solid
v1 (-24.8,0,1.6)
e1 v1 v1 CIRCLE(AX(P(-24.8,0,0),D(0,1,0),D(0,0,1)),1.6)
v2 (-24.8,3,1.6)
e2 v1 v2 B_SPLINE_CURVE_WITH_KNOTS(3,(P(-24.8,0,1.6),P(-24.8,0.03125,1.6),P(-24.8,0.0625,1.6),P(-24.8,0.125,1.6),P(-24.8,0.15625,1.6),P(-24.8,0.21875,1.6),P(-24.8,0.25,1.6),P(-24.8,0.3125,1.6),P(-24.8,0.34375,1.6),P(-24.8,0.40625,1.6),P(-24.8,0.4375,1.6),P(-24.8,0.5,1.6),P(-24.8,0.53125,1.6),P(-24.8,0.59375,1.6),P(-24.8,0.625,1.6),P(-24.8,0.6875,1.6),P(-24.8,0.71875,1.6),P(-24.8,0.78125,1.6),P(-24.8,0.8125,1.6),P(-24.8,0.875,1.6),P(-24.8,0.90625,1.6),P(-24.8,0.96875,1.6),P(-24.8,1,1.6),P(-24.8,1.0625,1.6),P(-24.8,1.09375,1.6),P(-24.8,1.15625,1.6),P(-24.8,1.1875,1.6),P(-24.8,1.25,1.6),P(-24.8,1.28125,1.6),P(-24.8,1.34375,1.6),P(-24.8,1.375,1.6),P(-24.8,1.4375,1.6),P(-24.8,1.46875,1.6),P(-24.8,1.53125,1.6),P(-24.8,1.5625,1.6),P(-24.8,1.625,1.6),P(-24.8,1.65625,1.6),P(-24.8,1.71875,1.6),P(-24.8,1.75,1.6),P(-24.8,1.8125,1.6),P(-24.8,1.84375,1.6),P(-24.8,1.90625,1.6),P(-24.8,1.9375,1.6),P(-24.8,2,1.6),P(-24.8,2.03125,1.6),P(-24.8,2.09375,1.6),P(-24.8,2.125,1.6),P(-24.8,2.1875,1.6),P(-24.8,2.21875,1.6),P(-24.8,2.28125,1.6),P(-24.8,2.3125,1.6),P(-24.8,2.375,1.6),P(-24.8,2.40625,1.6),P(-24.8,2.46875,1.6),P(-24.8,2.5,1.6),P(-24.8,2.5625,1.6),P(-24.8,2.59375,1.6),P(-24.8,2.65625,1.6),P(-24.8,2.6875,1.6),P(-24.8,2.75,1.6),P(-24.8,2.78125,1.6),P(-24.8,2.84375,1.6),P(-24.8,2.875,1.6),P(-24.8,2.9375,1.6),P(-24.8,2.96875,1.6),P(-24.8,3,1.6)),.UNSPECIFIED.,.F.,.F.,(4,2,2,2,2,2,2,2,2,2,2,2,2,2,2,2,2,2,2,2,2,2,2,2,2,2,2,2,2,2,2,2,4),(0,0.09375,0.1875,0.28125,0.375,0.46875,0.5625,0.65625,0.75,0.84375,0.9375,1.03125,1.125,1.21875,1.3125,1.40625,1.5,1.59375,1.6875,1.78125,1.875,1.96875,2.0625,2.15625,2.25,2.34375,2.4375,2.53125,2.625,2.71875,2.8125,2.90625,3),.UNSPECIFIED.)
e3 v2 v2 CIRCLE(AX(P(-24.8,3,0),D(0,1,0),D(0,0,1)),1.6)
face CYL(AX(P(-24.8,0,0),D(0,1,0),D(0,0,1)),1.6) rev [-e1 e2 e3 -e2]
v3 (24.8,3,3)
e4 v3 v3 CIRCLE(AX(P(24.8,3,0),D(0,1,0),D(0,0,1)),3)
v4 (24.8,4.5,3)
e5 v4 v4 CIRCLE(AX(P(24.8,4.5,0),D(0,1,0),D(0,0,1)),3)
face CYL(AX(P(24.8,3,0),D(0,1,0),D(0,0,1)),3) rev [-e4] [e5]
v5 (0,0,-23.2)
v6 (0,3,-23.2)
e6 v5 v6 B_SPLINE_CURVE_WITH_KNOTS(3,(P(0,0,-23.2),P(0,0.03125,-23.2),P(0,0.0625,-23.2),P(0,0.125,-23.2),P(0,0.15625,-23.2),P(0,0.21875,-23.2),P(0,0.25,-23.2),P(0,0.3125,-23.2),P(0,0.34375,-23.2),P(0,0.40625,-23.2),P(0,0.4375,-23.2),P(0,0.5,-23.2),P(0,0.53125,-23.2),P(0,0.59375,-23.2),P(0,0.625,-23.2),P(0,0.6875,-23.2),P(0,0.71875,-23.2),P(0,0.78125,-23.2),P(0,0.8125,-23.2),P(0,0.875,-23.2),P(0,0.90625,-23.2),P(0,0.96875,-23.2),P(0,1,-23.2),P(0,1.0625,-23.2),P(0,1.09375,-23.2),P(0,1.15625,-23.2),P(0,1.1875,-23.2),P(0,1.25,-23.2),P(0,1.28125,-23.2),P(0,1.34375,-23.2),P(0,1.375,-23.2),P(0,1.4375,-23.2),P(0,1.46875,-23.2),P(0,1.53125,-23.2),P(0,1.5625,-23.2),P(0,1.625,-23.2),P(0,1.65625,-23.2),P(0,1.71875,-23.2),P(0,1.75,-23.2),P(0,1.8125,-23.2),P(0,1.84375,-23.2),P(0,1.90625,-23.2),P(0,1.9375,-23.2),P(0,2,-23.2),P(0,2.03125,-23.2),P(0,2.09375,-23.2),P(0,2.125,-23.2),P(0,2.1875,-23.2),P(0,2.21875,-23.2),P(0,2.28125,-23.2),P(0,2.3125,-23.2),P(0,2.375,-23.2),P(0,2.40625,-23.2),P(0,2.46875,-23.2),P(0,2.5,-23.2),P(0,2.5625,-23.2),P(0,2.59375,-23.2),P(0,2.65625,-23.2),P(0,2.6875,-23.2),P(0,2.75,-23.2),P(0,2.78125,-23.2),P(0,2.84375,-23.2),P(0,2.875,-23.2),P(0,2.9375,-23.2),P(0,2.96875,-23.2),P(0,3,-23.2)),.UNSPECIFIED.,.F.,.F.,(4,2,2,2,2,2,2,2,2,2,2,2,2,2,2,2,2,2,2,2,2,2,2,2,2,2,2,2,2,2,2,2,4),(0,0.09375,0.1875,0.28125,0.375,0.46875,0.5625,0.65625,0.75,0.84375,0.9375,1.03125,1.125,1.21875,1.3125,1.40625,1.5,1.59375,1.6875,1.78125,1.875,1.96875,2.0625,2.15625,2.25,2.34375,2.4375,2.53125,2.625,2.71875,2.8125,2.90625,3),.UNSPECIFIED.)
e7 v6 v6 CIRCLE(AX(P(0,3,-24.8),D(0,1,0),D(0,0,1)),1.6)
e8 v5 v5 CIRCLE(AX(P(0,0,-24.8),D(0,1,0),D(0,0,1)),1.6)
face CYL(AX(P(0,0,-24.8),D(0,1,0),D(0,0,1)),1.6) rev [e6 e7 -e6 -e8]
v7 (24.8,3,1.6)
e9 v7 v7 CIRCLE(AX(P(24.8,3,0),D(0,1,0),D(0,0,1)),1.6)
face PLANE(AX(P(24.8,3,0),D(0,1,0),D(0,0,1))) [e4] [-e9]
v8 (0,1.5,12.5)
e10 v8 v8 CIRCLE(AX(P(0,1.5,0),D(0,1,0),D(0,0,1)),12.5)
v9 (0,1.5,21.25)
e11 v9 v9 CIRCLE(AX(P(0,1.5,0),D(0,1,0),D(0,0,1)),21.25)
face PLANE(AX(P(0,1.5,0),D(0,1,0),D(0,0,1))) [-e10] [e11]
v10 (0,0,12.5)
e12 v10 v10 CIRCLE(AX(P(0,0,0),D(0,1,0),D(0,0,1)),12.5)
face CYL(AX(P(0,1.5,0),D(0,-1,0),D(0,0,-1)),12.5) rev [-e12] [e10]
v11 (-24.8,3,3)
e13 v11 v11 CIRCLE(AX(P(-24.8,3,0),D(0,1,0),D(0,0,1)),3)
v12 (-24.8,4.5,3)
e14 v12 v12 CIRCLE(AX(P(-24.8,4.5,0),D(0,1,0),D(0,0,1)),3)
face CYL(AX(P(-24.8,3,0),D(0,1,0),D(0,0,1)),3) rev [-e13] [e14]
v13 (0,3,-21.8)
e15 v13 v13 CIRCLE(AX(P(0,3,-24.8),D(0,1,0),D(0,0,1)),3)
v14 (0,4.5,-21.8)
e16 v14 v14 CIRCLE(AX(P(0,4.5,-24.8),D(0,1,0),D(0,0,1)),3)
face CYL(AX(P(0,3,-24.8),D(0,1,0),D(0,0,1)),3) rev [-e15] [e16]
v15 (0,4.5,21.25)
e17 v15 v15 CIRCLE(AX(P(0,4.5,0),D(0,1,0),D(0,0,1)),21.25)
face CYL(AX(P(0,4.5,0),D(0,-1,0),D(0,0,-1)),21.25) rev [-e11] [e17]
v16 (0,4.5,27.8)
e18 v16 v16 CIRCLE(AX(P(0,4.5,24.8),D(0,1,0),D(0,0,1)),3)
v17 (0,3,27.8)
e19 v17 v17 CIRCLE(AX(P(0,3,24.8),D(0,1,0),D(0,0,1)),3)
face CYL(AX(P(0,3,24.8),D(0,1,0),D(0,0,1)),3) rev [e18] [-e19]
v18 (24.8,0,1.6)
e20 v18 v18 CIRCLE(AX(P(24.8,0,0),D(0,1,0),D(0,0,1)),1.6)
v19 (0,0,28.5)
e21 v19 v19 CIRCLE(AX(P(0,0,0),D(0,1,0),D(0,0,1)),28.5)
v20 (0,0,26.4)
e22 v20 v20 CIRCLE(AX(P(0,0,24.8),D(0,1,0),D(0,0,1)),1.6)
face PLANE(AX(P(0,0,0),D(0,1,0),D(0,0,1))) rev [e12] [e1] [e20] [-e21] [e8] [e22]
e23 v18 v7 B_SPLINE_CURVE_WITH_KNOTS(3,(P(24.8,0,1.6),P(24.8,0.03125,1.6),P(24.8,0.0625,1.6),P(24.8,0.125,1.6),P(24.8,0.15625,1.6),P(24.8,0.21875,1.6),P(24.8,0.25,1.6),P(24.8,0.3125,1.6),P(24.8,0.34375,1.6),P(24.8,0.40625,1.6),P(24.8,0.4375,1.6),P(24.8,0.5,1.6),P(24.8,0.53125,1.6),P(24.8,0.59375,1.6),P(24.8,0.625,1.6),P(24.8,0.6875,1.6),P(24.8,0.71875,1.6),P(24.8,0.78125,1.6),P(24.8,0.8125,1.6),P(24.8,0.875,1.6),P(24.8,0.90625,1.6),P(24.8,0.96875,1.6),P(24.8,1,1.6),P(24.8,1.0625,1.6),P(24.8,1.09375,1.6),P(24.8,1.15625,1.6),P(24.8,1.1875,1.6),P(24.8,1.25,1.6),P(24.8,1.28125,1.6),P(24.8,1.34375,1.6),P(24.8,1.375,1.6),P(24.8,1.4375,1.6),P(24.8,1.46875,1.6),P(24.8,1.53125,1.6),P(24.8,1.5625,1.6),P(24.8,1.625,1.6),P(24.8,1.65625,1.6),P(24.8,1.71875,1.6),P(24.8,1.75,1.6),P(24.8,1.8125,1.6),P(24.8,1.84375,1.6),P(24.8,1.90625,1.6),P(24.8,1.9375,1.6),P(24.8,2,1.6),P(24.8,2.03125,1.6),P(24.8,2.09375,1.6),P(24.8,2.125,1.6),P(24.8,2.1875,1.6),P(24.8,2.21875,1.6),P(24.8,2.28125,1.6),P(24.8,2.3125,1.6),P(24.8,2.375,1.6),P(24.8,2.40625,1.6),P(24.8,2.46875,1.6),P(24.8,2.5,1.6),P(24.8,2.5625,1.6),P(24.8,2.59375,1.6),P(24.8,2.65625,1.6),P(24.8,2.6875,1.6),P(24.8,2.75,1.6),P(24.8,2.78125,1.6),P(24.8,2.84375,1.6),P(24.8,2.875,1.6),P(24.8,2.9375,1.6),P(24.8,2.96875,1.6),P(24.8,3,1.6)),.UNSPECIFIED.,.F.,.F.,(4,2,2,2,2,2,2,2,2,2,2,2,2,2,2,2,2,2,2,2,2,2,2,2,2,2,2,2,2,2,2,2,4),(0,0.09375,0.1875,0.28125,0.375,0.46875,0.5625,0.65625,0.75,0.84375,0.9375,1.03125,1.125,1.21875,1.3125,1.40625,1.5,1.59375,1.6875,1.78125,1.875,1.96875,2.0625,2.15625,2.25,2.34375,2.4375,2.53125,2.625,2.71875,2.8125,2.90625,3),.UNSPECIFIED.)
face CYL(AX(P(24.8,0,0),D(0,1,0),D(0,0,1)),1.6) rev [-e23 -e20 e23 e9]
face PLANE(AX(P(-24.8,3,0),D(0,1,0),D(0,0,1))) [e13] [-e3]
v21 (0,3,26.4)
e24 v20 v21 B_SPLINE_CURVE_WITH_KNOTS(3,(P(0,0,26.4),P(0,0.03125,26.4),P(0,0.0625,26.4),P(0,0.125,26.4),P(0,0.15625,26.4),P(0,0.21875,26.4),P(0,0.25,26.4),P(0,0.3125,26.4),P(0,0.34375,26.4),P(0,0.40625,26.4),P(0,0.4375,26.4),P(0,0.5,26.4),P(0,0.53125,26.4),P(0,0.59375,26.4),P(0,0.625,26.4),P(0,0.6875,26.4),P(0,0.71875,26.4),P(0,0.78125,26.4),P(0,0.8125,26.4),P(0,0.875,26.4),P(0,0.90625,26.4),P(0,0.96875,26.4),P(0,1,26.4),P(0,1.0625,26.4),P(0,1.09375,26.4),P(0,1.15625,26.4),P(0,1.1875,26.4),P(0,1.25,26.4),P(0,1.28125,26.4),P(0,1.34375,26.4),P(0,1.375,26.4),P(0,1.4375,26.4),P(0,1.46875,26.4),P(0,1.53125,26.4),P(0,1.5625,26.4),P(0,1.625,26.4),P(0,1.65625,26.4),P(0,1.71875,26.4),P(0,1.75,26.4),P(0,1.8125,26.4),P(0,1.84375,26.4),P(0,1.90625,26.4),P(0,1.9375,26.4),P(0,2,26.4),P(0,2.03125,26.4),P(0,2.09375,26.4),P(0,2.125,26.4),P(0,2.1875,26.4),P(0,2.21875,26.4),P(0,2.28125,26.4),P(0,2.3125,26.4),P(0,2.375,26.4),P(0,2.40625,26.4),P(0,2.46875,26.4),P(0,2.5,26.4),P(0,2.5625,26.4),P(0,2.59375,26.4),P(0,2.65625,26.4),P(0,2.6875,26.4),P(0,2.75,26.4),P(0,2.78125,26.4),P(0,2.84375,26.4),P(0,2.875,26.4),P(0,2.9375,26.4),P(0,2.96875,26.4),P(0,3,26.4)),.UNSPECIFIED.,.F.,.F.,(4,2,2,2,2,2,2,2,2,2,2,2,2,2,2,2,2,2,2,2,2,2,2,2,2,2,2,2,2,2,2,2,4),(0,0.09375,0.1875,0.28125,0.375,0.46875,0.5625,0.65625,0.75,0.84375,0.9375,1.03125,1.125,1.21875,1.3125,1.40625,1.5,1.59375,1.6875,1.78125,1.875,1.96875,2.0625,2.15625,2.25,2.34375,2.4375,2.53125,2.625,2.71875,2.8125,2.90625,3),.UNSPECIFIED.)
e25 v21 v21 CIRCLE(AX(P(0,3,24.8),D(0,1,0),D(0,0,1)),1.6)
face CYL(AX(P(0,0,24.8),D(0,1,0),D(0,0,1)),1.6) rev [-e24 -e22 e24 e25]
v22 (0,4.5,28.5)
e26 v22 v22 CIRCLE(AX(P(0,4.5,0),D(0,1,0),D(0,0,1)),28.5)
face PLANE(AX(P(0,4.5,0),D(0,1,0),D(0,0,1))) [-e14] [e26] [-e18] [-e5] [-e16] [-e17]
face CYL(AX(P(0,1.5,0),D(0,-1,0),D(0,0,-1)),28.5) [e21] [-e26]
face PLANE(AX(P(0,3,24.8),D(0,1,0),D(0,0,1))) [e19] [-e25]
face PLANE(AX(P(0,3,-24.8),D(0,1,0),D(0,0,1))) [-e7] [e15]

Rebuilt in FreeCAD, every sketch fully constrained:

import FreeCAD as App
import Part
import Sketcher
from FreeCAD import Vector

doc = App.newDocument("Part")
body = doc.addObject("PartDesign::Body", "Body")

# Sketch on XZ plane
sketch1 = doc.addObject("Sketcher::SketchObject", "Sketch")
body.addObject(sketch1)
sketch1.AttachmentSupport = (doc.XZ_Plane, [""])
sketch1.MapMode = "FlatFace"
sketch1.addGeometry([
    Part.Circle(Vector(0, 0, 0), Vector(0, 0, 1), 28),
    Part.Circle(Vector(0, 0, 0), Vector(0, 0, 1), 12),
], False)
sketch1.addConstraint([
    Sketcher.Constraint("Coincident", 0, 3, -1, 1),
    Sketcher.Constraint("Coincident", 1, 3, -1, 1),
    Sketcher.Constraint("Diameter", 0, 57.0),
    Sketcher.Constraint("Diameter", 1, 25.0),
])
pad1 = doc.addObject("PartDesign::Pad", "Pad")
body.addObject(pad1)
pad1.Profile = sketch1
pad1.Length = 1.5
pad1.Reversed = True

# Sketch on XZ plane
sketch2 = doc.addObject("Sketcher::SketchObject", "Sketch001")
body.addObject(sketch2)
sketch2.AttachmentSupport = (doc.XZ_Plane, [""])
sketch2.MapMode = "FlatFace"
sketch2.AttachmentOffset = App.Placement(Vector(0, 0, -1.5), App.Rotation())
sketch2.addGeometry([
    Part.Circle(Vector(0, 0, 0), Vector(0, 0, 1), 28),
    Part.Circle(Vector(0, 0, 0), Vector(0, 0, 1), 21),
], False)
sketch2.addConstraint([
    Sketcher.Constraint("Coincident", 0, 3, -1, 1),
    Sketcher.Constraint("Coincident", 1, 3, -1, 1),
    Sketcher.Constraint("Diameter", 0, 57.0),
    Sketcher.Constraint("Diameter", 1, 42.5),
])
pad2 = doc.addObject("PartDesign::Pad", "Pad001")
body.addObject(pad2)
pad2.Profile = sketch2
pad2.Length = 3
pad2.Reversed = True

# Sketch on XZ plane
sketch3 = doc.addObject("Sketcher::SketchObject", "Sketch002")
body.addObject(sketch3)
sketch3.AttachmentSupport = (doc.XZ_Plane, [""])
sketch3.MapMode = "FlatFace"
sketch3.AttachmentOffset = App.Placement(Vector(0, 0, -4.5), App.Rotation())
sketch3.addGeometry([
    Part.Circle(Vector(0, -24.8, 0), Vector(0, 0, 1), 3),
    Part.Circle(Vector(24.8, 0, 0), Vector(0, 0, 1), 3),
    Part.Circle(Vector(0, 24.8, 0), Vector(0, 0, 1), 3),
    Part.Circle(Vector(-24.8, 0, 0), Vector(0, 0, 1), 3),
], False)
sketch3.addConstraint([
    Sketcher.Constraint("Equal", 0, 1),
    Sketcher.Constraint("Equal", 1, 2),
    Sketcher.Constraint("Equal", 2, 3),
    Sketcher.Constraint("Symmetric", 0, 3, 2, 3, -1, 1),
    Sketcher.Constraint("Symmetric", 1, 3, 3, 3, -1, 1),
    Sketcher.Constraint("PointOnObject", 0, 3, -2),
    Sketcher.Constraint("PointOnObject", 1, 3, -1),
    Sketcher.Constraint("Diameter", 0, 6.0),
    Sketcher.Constraint("DistanceY", 0, 3, -1, 1, 24.8),
    Sketcher.Constraint("DistanceX", -1, 1, 1, 3, 24.8),
])
pocket1 = doc.addObject("PartDesign::Pocket", "Pocket")
body.addObject(pocket1)
pocket1.Profile = sketch3
pocket1.Length = 1.5
pocket1.Reversed = True

# Sketch on XZ plane
sketch4 = doc.addObject("Sketcher::SketchObject", "Sketch003")
body.addObject(sketch4)
sketch4.AttachmentSupport = (doc.XZ_Plane, [""])
sketch4.MapMode = "FlatFace"
sketch4.AttachmentOffset = App.Placement(Vector(0, 0, -3), App.Rotation())
sketch4.addGeometry([
    Part.Circle(Vector(0, -24.8, 0), Vector(0, 0, 1), 1.6),
    Part.Circle(Vector(24.8, 0, 0), Vector(0, 0, 1), 1.6),
    Part.Circle(Vector(0, 24.8, 0), Vector(0, 0, 1), 1.6),
    Part.Circle(Vector(-24.8, 0, 0), Vector(0, 0, 1), 1.6),
], False)
sketch4.addConstraint([
    Sketcher.Constraint("Equal", 0, 1),
    Sketcher.Constraint("Equal", 1, 2),
    Sketcher.Constraint("Equal", 2, 3),
    Sketcher.Constraint("Symmetric", 0, 3, 2, 3, -1, 1),
    Sketcher.Constraint("Symmetric", 1, 3, 3, 3, -1, 1),
    Sketcher.Constraint("PointOnObject", 0, 3, -2),
    Sketcher.Constraint("PointOnObject", 1, 3, -1),
    Sketcher.Constraint("Diameter", 0, 3.2),
    Sketcher.Constraint("DistanceY", 0, 3, -1, 1, 24.8),
    Sketcher.Constraint("DistanceX", -1, 1, 1, 3, 24.8),
])
pocket2 = doc.addObject("PartDesign::Pocket", "Pocket001")
body.addObject(pocket2)
pocket2.Profile = sketch4
pocket2.Type = "ThroughAll"
pocket2.Reversed = True

doc.recompute()
